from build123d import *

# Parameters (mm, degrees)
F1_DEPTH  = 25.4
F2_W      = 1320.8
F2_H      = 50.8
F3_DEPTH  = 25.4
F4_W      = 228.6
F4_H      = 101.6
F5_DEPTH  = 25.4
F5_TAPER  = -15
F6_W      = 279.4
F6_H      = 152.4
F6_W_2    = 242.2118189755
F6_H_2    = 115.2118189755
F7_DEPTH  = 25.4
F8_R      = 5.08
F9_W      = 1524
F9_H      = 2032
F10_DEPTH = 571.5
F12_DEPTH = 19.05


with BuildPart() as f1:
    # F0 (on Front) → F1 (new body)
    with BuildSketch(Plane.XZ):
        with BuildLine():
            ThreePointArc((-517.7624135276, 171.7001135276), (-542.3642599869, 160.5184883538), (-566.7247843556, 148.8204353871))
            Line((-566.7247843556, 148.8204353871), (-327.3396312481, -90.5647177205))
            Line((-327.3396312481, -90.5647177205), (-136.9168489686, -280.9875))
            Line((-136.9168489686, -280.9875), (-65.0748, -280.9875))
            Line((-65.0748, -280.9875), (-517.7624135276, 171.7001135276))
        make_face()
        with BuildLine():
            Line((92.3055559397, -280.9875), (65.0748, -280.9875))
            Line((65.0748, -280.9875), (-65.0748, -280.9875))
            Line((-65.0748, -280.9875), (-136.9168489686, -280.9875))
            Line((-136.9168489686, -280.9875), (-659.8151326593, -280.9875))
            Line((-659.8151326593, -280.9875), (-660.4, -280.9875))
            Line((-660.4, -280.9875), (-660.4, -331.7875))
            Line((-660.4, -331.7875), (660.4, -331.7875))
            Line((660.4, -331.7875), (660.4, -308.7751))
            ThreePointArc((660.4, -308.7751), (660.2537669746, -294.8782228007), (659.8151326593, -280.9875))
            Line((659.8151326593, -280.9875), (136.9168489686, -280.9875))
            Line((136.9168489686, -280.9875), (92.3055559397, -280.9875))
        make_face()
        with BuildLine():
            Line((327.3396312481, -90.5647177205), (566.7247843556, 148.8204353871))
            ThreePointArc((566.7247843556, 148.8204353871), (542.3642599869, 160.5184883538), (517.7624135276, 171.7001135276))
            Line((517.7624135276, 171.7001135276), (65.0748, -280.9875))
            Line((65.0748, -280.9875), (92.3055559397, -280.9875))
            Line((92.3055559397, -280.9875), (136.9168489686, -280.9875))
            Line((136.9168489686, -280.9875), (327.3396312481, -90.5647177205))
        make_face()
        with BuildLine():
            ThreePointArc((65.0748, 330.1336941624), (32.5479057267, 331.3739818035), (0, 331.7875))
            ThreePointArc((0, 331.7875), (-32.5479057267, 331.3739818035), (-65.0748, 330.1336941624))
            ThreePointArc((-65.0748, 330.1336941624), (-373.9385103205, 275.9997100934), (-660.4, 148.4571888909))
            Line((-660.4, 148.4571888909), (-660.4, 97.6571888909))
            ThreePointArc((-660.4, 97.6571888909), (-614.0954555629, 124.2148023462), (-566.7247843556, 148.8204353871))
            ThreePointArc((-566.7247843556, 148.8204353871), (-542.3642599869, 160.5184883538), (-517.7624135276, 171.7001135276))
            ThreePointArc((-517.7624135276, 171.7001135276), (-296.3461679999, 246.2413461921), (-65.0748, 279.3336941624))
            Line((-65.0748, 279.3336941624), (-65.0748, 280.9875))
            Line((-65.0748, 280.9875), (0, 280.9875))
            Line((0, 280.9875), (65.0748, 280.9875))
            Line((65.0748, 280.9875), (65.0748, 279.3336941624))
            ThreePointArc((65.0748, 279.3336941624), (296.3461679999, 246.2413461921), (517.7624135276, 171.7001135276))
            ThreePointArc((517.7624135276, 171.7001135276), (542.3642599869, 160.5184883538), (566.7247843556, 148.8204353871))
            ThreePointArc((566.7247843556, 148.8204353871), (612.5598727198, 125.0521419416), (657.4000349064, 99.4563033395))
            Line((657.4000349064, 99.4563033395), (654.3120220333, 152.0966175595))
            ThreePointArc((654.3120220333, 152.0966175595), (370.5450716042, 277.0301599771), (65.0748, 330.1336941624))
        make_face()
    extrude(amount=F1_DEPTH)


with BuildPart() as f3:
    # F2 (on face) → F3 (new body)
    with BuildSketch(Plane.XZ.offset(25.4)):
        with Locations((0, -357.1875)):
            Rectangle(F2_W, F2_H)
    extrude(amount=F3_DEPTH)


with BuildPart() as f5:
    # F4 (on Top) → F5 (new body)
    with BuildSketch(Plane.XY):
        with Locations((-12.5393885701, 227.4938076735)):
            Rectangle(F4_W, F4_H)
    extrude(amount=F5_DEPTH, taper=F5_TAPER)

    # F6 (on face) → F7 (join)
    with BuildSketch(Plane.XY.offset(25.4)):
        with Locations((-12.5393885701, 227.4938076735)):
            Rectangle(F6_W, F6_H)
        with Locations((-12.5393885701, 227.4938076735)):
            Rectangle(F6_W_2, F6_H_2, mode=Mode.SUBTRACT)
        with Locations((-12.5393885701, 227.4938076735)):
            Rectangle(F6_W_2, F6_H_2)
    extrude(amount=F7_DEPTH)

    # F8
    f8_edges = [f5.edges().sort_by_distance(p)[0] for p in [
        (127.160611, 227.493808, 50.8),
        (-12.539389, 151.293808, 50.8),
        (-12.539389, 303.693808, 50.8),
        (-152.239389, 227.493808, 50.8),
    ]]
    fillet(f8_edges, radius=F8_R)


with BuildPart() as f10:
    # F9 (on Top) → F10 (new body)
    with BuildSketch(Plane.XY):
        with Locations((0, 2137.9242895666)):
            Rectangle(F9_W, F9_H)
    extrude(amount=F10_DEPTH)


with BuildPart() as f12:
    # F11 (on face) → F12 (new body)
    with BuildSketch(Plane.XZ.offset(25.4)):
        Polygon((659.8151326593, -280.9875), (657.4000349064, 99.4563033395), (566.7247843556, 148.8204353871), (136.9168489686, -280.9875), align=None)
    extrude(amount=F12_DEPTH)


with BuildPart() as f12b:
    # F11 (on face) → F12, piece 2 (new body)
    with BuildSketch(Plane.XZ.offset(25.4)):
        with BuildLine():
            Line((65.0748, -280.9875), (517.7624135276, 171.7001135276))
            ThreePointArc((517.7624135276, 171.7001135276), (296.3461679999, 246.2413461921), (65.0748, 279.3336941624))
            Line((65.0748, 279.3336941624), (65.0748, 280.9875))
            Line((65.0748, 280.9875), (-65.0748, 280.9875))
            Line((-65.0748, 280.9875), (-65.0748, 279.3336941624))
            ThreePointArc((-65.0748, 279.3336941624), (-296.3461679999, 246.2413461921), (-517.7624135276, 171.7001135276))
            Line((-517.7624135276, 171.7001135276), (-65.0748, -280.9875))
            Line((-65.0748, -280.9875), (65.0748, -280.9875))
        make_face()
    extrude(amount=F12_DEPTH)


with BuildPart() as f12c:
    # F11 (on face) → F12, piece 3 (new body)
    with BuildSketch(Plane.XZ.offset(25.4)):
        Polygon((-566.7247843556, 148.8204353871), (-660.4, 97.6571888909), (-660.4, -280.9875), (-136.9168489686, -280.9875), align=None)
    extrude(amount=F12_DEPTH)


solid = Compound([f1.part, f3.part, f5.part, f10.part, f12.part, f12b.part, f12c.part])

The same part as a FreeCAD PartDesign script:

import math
import FreeCAD as App
import Part
import Sketcher
from FreeCAD import Vector
Q = App.Units.Quantity


def edges_at(feature, points):
    """Names of the edges that pass closest to the given points."""
    edges = feature.Shape.Edges
    near = lambda p: min(range(len(edges)), key=lambda i: edges[i].distToShape(Part.Vertex(*p))[0])
    return sorted({f"Edge{near(p) + 1}" for p in points})

doc = App.newDocument("Part")
body = doc.addObject("PartDesign::Body", "Body")

sketch1 = body.newObject("Sketcher::SketchObject", "Sketch")
sketch1.AttachmentSupport = (doc.getObject("XZ_Plane"), [""])
sketch1.MapMode = "FlatFace"
sketch1.addGeometry(Part.LineSegment(Vector(-566.7, 148.8, 0), Vector(-136.9, -281, 0)), False)
sketch1.addGeometry(Part.LineSegment(Vector(-136.9, -281, 0), Vector(-660.4, -281, 0)), False)
sketch1.addGeometry(Part.LineSegment(Vector(-660.4, -281, 0), Vector(-660.4, -331.8, 0)), False)
sketch1.addGeometry(Part.LineSegment(Vector(-660.4, -331.8, 0), Vector(660.4, -331.8, 0)), False)
sketch1.addGeometry(Part.LineSegment(Vector(660.4, -331.8, 0), Vector(660.4, -308.8, 0)), False)
sketch1.addGeometry(Part.ArcOfCircle(Part.Circle(Vector(0, -308.8, 0), Vector(0, 0, 1), 660.4), math.radians(0), math.radians(2.41)), False)
sketch1.addGeometry(Part.LineSegment(Vector(659.8, -281, 0), Vector(136.9, -281, 0)), False)
sketch1.addGeometry(Part.LineSegment(Vector(136.9, -281, 0), Vector(566.7, 148.8, 0)), False)
sketch1.addGeometry(Part.ArcOfCircle(Part.Circle(Vector(0, -1000.1, 0), Vector(0, 0, 1), 1281.1), math.radians(59.13), math.radians(63.75)), False)
sketch1.addGeometry(Part.LineSegment(Vector(657.4, 99.5, 0), Vector(654.3, 152.1, 0)), False)
sketch1.addGeometry(Part.ArcOfCircle(Part.Circle(Vector(0, -949.3, 0), Vector(0, 0, 1), 1281.1), math.radians(59), math.radians(87)), False)
sketch1.addGeometry(Part.ArcOfCircle(Part.Circle(Vector(0, -949.3, 0), Vector(0, 0, 1), 1281.1), math.radians(87.09), math.radians(90)), False)
sketch1.addGeometry(Part.ArcOfCircle(Part.Circle(Vector(0, -949.3, 0), Vector(0, 0, 1), 1281.1), math.radians(90), math.radians(92.91)), False)
sketch1.addGeometry(Part.ArcOfCircle(Part.Circle(Vector(0, -949.3, 0), Vector(0, 0, 1), 1281.1), math.radians(93), math.radians(121)), False)
sketch1.addGeometry(Part.LineSegment(Vector(-660.4, 148.5, 0), Vector(-660.4, 97.7, 0)), False)
sketch1.addGeometry(Part.ArcOfCircle(Part.Circle(Vector(0, -1000.1, 0), Vector(0, 0, 1), 1281.1), math.radians(116.25), math.radians(121.03)), False)
sketch1.addGeometry(Part.LineSegment(Vector(517.8, 171.7, 0), Vector(65.1, -281, 0)), False)
sketch1.addGeometry(Part.LineSegment(Vector(65.1, -281, 0), Vector(-65.1, -281, 0)), False)
sketch1.addGeometry(Part.LineSegment(Vector(-65.1, -281, 0), Vector(-517.8, 171.7, 0)), False)
sketch1.addGeometry(Part.ArcOfCircle(Part.Circle(Vector(0, -1000.1, 0), Vector(0, 0, 1), 1281.1), math.radians(93), math.radians(114)), False)
sketch1.addGeometry(Part.LineSegment(Vector(-65.1, 279.3, 0), Vector(-65.1, 281, 0)), False)
sketch1.addGeometry(Part.LineSegment(Vector(-65.1, 281, 0), Vector(65.1, 281, 0)), False)
sketch1.addGeometry(Part.LineSegment(Vector(65.1, 281, 0), Vector(65.1, 279.3, 0)), False)
sketch1.addGeometry(Part.ArcOfCircle(Part.Circle(Vector(0, -1000.1, 0), Vector(0, 0, 1), 1281.1), math.radians(66), math.radians(87)), False)
sketch1.addConstraint(Sketcher.Constraint("Coincident", 0, 2, 1, 1))
sketch1.addConstraint(Sketcher.Constraint("Coincident", 1, 2, 2, 1))
sketch1.addConstraint(Sketcher.Constraint("Coincident", 2, 2, 3, 1))
sketch1.addConstraint(Sketcher.Constraint("Coincident", 3, 2, 4, 1))
sketch1.addConstraint(Sketcher.Constraint("Tangent", 4, 2, 5, 1))
sketch1.addConstraint(Sketcher.Constraint("Coincident", 5, 2, 6, 1))
sketch1.addConstraint(Sketcher.Constraint("Coincident", 6, 2, 7, 1))
sketch1.addConstraint(Sketcher.Constraint("Coincident", 7, 2, 8, 2))
sketch1.addConstraint(Sketcher.Constraint("Coincident", 8, 1, 9, 1))
sketch1.addConstraint(Sketcher.Constraint("Coincident", 9, 2, 10, 1))
sketch1.addConstraint(Sketcher.Constraint("Coincident", 10, 2, 11, 1))
sketch1.addConstraint(Sketcher.Constraint("Coincident", 11, 2, 12, 1))
sketch1.addConstraint(Sketcher.Constraint("Coincident", 12, 2, 13, 1))
sketch1.addConstraint(Sketcher.Constraint("Coincident", 13, 2, 14, 1))
sketch1.addConstraint(Sketcher.Constraint("Coincident", 14, 2, 15, 2))
sketch1.addConstraint(Sketcher.Constraint("Coincident", 15, 1, 0, 1))
sketch1.addConstraint(Sketcher.Constraint("Coincident", 16, 2, 17, 1))
sketch1.addConstraint(Sketcher.Constraint("Coincident", 17, 2, 18, 1))
sketch1.addConstraint(Sketcher.Constraint("Coincident", 18, 2, 19, 2))
sketch1.addConstraint(Sketcher.Constraint("Coincident", 19, 1, 20, 1))
sketch1.addConstraint(Sketcher.Constraint("Coincident", 20, 2, 21, 1))
sketch1.addConstraint(Sketcher.Constraint("Coincident", 21, 2, 22, 1))
sketch1.addConstraint(Sketcher.Constraint("Coincident", 22, 2, 23, 2))
sketch1.addConstraint(Sketcher.Constraint("Coincident", 23, 1, 16, 1))
sketch1.addConstraint(Sketcher.Constraint("Horizontal", 1))
sketch1.addConstraint(Sketcher.Constraint("Vertical", 2))
sketch1.addConstraint(Sketcher.Constraint("Horizontal", 3))
sketch1.addConstraint(Sketcher.Constraint("Vertical", 4))
sketch1.addConstraint(Sketcher.Constraint("Horizontal", 6))
sketch1.addConstraint(Sketcher.Constraint("Vertical", 14))
sketch1.addConstraint(Sketcher.Constraint("Horizontal", 17))
sketch1.addConstraint(Sketcher.Constraint("Vertical", 20))
sketch1.addConstraint(Sketcher.Constraint("Horizontal", 21))
sketch1.addConstraint(Sketcher.Constraint("Vertical", 22))
sketch1.addConstraint(Sketcher.Constraint("Coincident", 11, 3, 10, 3))
sketch1.addConstraint(Sketcher.Constraint("Coincident", 12, 3, 10, 3))
sketch1.addConstraint(Sketcher.Constraint("Coincident", 13, 3, 10, 3))
sketch1.addConstraint(Sketcher.Constraint("Coincident", 15, 3, 8, 3))
sketch1.addConstraint(Sketcher.Constraint("Coincident", 19, 3, 8, 3))
sketch1.addConstraint(Sketcher.Constraint("Coincident", 23, 3, 8, 3))
sketch1.addConstraint(Sketcher.Constraint("Equal", 8, 10))
sketch1.addConstraint(Sketcher.Constraint("Equal", 13, 15))
sketch1.addConstraint(Sketcher.Constraint("Equal", 15, 19))
sketch1.addConstraint(Sketcher.Constraint("Equal", 19, 23))
sketch1.addConstraint(Sketcher.Constraint("Symmetric", 16, 2, 20, 2, -1, 1))
sketch1.addConstraint(Sketcher.Constraint("Symmetric", 0, 2, 6, 2, -2))
sketch1.addConstraint(Sketcher.Constraint("PointOnObject", 5, 3, -2))
sketch1.addConstraint(Sketcher.Constraint("PointOnObject", 8, 3, -2))
sketch1.addConstraint(Sketcher.Constraint("PointOnObject", 10, 3, -2))
sketch1.addConstraint(Sketcher.Constraint("PointOnObject", 11, 2, -2))
sketch1.addConstraint(Sketcher.Constraint("Perpendicular", 0, 7))
sketch1.addConstraint(Sketcher.Constraint("Parallel", 7, 16))
sketch1.addConstraint(Sketcher.Constraint("Perpendicular", 16, 18))
sketch1.addConstraint(Sketcher.Constraint("Horizontal", 10, 2, 12, 2))
sketch1.addConstraint(Sketcher.Constraint("Horizontal", 6, 2, 16, 2))
sketch1.addConstraint(Sketcher.Constraint("Vertical", 10, 2, 16, 2))
sketch1.addConstraint(Sketcher.Constraint("Vertical", 16, 2, 21, 2))
sketch1.addConstraint(Sketcher.Constraint("Equal", 17, 21))
sketch1.addConstraint(Sketcher.Constraint("Equal", 2, 14))
sketch1.addConstraint(Sketcher.Constraint("Equal", 0, 7))
sketch1.addConstraint(Sketcher.Constraint("Radius", 5, Q("26 in")))
sketch1.addConstraint(Sketcher.Constraint("DistanceX", 3, 1, 3, 2, Q("52 in")))
sketch1.addConstraint(Sketcher.Constraint("DistanceY", 2, 2, 2, 1, Q("2 in")))
sketch1.addConstraint(Sketcher.Constraint("DistanceX", 14, 2, -1, 1, Q("26 in")))
sketch1.addConstraint(Sketcher.Constraint("Radius", 8, Q("50.438 in")))
sketch1.addConstraint(Sketcher.Constraint("DistanceY", 20, 2, 11, 2, Q("2 in")))
sketch1.addConstraint(Sketcher.Constraint("DistanceX", 17, 2, 17, 1, Q("5.124 in")))
sketch1.addConstraint(Sketcher.Constraint("DistanceY", 4, 1, 4, 2, Q("0.906 in")))
sketch1.addConstraint(Sketcher.Constraint("DistanceY", 0, 2, -1, 1, Q("11.0625 in")))
sketch1.addConstraint(Sketcher.Constraint("DistanceX", 1, 2, 1, 1, 523.483151))
sketch1.addConstraint(Sketcher.Constraint("Distance", 9, 52.730812))
sketch1.addConstraint(Sketcher.Constraint("DistanceX", 9, 2, 5, 2, 5.503111))
pad1 = body.newObject("PartDesign::Pad", "Pad")
pad1.Profile = sketch1
pad1.Length = Q("1 in")
body2 = doc.addObject("PartDesign::Body", "Body001")

sketch2 = body2.newObject("Sketcher::SketchObject", "Sketch001")
sketch2.AttachmentSupport = (doc.getObject("XZ_Plane001"), [""])
sketch2.MapMode = "FlatFace"
sketch2.AttachmentOffset = App.Placement(Vector(0, 0, 1 * 25.4), App.Rotation())
sketch2.addGeometry(Part.LineSegment(Vector(-660, -332, 0), Vector(-660, -383, 0)), False)
sketch2.addGeometry(Part.LineSegment(Vector(-660, -383, 0), Vector(660, -383, 0)), False)
sketch2.addGeometry(Part.LineSegment(Vector(660, -383, 0), Vector(660, -332, 0)), False)
sketch2.addGeometry(Part.LineSegment(Vector(660, -332, 0), Vector(-660, -332, 0)), False)
sketch2.addConstraint(Sketcher.Constraint("Coincident", 0, 2, 1, 1))
sketch2.addConstraint(Sketcher.Constraint("Coincident", 1, 2, 2, 1))
sketch2.addConstraint(Sketcher.Constraint("Coincident", 2, 2, 3, 1))
sketch2.addConstraint(Sketcher.Constraint("Coincident", 3, 2, 0, 1))
sketch2.addConstraint(Sketcher.Constraint("Vertical", 0))
sketch2.addConstraint(Sketcher.Constraint("Horizontal", 1))
sketch2.addConstraint(Sketcher.Constraint("Vertical", 2))
sketch2.addConstraint(Sketcher.Constraint("Horizontal", 3))
sketch2.addConstraint(Sketcher.Constraint("DistanceX", 1, 1, 1, 2, Q("52 in")))
sketch2.addConstraint(Sketcher.Constraint("DistanceY", 0, 2, 0, 1, Q("2 in")))
sketch2.addConstraint(Sketcher.Constraint("DistanceX", 0, 2, -1, 1, Q("26 in")))
sketch2.addConstraint(Sketcher.Constraint("DistanceY", 0, 2, -1, 1, Q("15.0625 in")))
pad2 = body2.newObject("PartDesign::Pad", "Pad001")
pad2.Profile = sketch2
pad2.Length = Q("1 in")
body3 = doc.addObject("PartDesign::Body", "Body002")

sketch3 = body3.newObject("Sketcher::SketchObject", "Sketch002")
sketch3.AttachmentSupport = (doc.getObject("XY_Plane002"), [""])
sketch3.MapMode = "FlatFace"
sketch3.addGeometry(Part.LineSegment(Vector(-127, 278, 0), Vector(-127, 177, 0)), False)
sketch3.addGeometry(Part.LineSegment(Vector(-127, 177, 0), Vector(102, 177, 0)), False)
sketch3.addGeometry(Part.LineSegment(Vector(102, 177, 0), Vector(102, 278, 0)), False)
sketch3.addGeometry(Part.LineSegment(Vector(102, 278, 0), Vector(-127, 278, 0)), False)
sketch3.addConstraint(Sketcher.Constraint("Coincident", 0, 2, 1, 1))
sketch3.addConstraint(Sketcher.Constraint("Coincident", 1, 2, 2, 1))
sketch3.addConstraint(Sketcher.Constraint("Coincident", 2, 2, 3, 1))
sketch3.addConstraint(Sketcher.Constraint("Coincident", 3, 2, 0, 1))
sketch3.addConstraint(Sketcher.Constraint("Vertical", 0))
sketch3.addConstraint(Sketcher.Constraint("Horizontal", 1))
sketch3.addConstraint(Sketcher.Constraint("Vertical", 2))
sketch3.addConstraint(Sketcher.Constraint("Horizontal", 3))
sketch3.addConstraint(Sketcher.Constraint("DistanceX", 1, 1, 1, 2, Q("9 in")))
sketch3.addConstraint(Sketcher.Constraint("DistanceY", 0, 2, 0, 1, Q("4 in")))
sketch3.addConstraint(Sketcher.Constraint("DistanceX", 0, 2, -1, 1, 126.839389))
sketch3.addConstraint(Sketcher.Constraint("DistanceY", -1, 1, 0, 2, 176.693808))
pad3 = body3.newObject("PartDesign::Pad", "Pad002")
pad3.Profile = sketch3
pad3.Length = Q("1 in")
pad3.TaperAngle = 15

sketch4 = body3.newObject("Sketcher::SketchObject", "Sketch003")
sketch4.AttachmentSupport = (doc.getObject("XY_Plane002"), [""])
sketch4.MapMode = "FlatFace"
sketch4.AttachmentOffset = App.Placement(Vector(0, 0, 1 * 25.4), App.Rotation())
sketch4.addGeometry(Part.LineSegment(Vector(-152, 304, 0), Vector(-152, 151, 0)), False)
sketch4.addGeometry(Part.LineSegment(Vector(-152, 151, 0), Vector(127, 151, 0)), False)
sketch4.addGeometry(Part.LineSegment(Vector(127, 151, 0), Vector(127, 304, 0)), False)
sketch4.addGeometry(Part.LineSegment(Vector(127, 304, 0), Vector(-152, 304, 0)), False)
sketch4.addConstraint(Sketcher.Constraint("Coincident", 0, 2, 1, 1))
sketch4.addConstraint(Sketcher.Constraint("Coincident", 1, 2, 2, 1))
sketch4.addConstraint(Sketcher.Constraint("Coincident", 2, 2, 3, 1))
sketch4.addConstraint(Sketcher.Constraint("Coincident", 3, 2, 0, 1))
sketch4.addConstraint(Sketcher.Constraint("Vertical", 0))
sketch4.addConstraint(Sketcher.Constraint("Horizontal", 1))
sketch4.addConstraint(Sketcher.Constraint("Vertical", 2))
sketch4.addConstraint(Sketcher.Constraint("Horizontal", 3))
sketch4.addConstraint(Sketcher.Constraint("DistanceX", 1, 1, 1, 2, Q("11 in")))
sketch4.addConstraint(Sketcher.Constraint("DistanceY", 0, 2, 0, 1, Q("6 in")))
sketch4.addConstraint(Sketcher.Constraint("DistanceX", 0, 2, -1, 1, 152.239389))
sketch4.addConstraint(Sketcher.Constraint("DistanceY", -1, 1, 0, 2, 151.293808))
pad4 = body3.newObject("PartDesign::Pad", "Pad003")
pad4.Profile = sketch4
pad4.Length = Q("1 in")
doc.recompute()

fillet = body3.newObject("PartDesign::Fillet", "Fillet")
fillet.Base = (pad4, edges_at(pad4, [
    (127.161, 227.494, 50.8),
    (-12.539, 151.294, 50.8),
    (-12.539, 303.694, 50.8),
    (-152.239, 227.494, 50.8),
]))
fillet.Radius = Q("0.2 in")
body4 = doc.addObject("PartDesign::Body", "Body003")

sketch5 = body4.newObject("Sketcher::SketchObject", "Sketch004")
sketch5.AttachmentSupport = (doc.getObject("XY_Plane003"), [""])
sketch5.MapMode = "FlatFace"
sketch5.addGeometry(Part.LineSegment(Vector(-762, 3154, 0), Vector(-762, 1122, 0)), False)
sketch5.addGeometry(Part.LineSegment(Vector(-762, 1122, 0), Vector(762, 1122, 0)), False)
sketch5.addGeometry(Part.LineSegment(Vector(762, 1122, 0), Vector(762, 3154, 0)), False)
sketch5.addGeometry(Part.LineSegment(Vector(762, 3154, 0), Vector(-762, 3154, 0)), False)
sketch5.addConstraint(Sketcher.Constraint("Coincident", 0, 2, 1, 1))
sketch5.addConstraint(Sketcher.Constraint("Coincident", 1, 2, 2, 1))
sketch5.addConstraint(Sketcher.Constraint("Coincident", 2, 2, 3, 1))
sketch5.addConstraint(Sketcher.Constraint("Coincident", 3, 2, 0, 1))
sketch5.addConstraint(Sketcher.Constraint("Vertical", 0))
sketch5.addConstraint(Sketcher.Constraint("Horizontal", 1))
sketch5.addConstraint(Sketcher.Constraint("Vertical", 2))
sketch5.addConstraint(Sketcher.Constraint("Horizontal", 3))
sketch5.addConstraint(Sketcher.Constraint("DistanceX", 1, 1, 1, 2, Q("60 in")))
sketch5.addConstraint(Sketcher.Constraint("DistanceY", 0, 2, 0, 1, Q("80 in")))
sketch5.addConstraint(Sketcher.Constraint("DistanceX", 0, 2, -1, 1, Q("30 in")))
sketch5.addConstraint(Sketcher.Constraint("DistanceY", -1, 1, 0, 2, 1121.92429))
pad5 = body4.newObject("PartDesign::Pad", "Pad004")
pad5.Profile = sketch5
pad5.Length = Q("22.5 in")
body5 = doc.addObject("PartDesign::Body", "Body004")

sketch6 = body5.newObject("Sketcher::SketchObject", "Sketch005")
sketch6.AttachmentSupport = (doc.getObject("XZ_Plane004"), [""])
sketch6.MapMode = "FlatFace"
sketch6.AttachmentOffset = App.Placement(Vector(0, 0, 1 * 25.4), App.Rotation())
sketch6.addGeometry(Part.LineSegment(Vector(660, -281, 0), Vector(657, 99, 0)), False)
sketch6.addGeometry(Part.LineSegment(Vector(657, 99, 0), Vector(567, 149, 0)), False)
sketch6.addGeometry(Part.LineSegment(Vector(567, 149, 0), Vector(137, -281, 0)), False)
sketch6.addGeometry(Part.LineSegment(Vector(137, -281, 0), Vector(660, -281, 0)), False)
sketch6.addConstraint(Sketcher.Constraint("Coincident", 0, 2, 1, 1))
sketch6.addConstraint(Sketcher.Constraint("Coincident", 1, 2, 2, 1))
sketch6.addConstraint(Sketcher.Constraint("Coincident", 2, 2, 3, 1))
sketch6.addConstraint(Sketcher.Constraint("Coincident", 3, 2, 0, 1))
sketch6.addConstraint(Sketcher.Constraint("Horizontal", 3))
sketch6.addConstraint(Sketcher.Constraint("Angle", 2, Q("-135 deg")))
sketch6.addConstraint(Sketcher.Constraint("DistanceY", 2, 2, -1, 1, Q("11.0625 in")))
sketch6.addConstraint(Sketcher.Constraint("Distance", 0, 380.451469))
sketch6.addConstraint(Sketcher.Constraint("Distance", 2, 607.840211))
sketch6.addConstraint(Sketcher.Constraint("DistanceX", 3, 1, 3, 2, 522.898284))
sketch6.addConstraint(Sketcher.Constraint("DistanceX", -1, 1, 2, 2, 136.916849))
sketch6.addConstraint(Sketcher.Constraint("DistanceX", 1, 2, 0, 2, 90.675251))
pad6 = body5.newObject("PartDesign::Pad", "Pad005")
pad6.Profile = sketch6
pad6.Length = Q("0.75 in")
body6 = doc.addObject("PartDesign::Body", "Body005")

sketch7 = body6.newObject("Sketcher::SketchObject", "Sketch006")
sketch7.AttachmentSupport = (doc.getObject("XZ_Plane005"), [""])
sketch7.MapMode = "FlatFace"
sketch7.AttachmentOffset = App.Placement(Vector(0, 0, 1 * 25.4), App.Rotation())
sketch7.addGeometry(Part.LineSegment(Vector(65.1, -281, 0), Vector(517.8, 171.7, 0)), False)
sketch7.addGeometry(Part.ArcOfCircle(Part.Circle(Vector(0, -1000.1, 0), Vector(0, 0, 1), 1281.1), math.radians(66), math.radians(87)), False)
sketch7.addGeometry(Part.LineSegment(Vector(65.1, 279.3, 0), Vector(65.1, 281, 0)), False)
sketch7.addGeometry(Part.LineSegment(Vector(65.1, 281, 0), Vector(-65.1, 281, 0)), False)
sketch7.addGeometry(Part.LineSegment(Vector(-65.1, 281, 0), Vector(-65.1, 279.3, 0)), False)
sketch7.addGeometry(Part.ArcOfCircle(Part.Circle(Vector(0, -1000.1, 0), Vector(0, 0, 1), 1281.1), math.radians(93), math.radians(114)), False)
sketch7.addGeometry(Part.LineSegment(Vector(-517.8, 171.7, 0), Vector(-65.1, -281, 0)), False)
sketch7.addGeometry(Part.LineSegment(Vector(-65.1, -281, 0), Vector(65.1, -281, 0)), False)
sketch7.addConstraint(Sketcher.Constraint("Coincident", 0, 2, 1, 1))
sketch7.addConstraint(Sketcher.Constraint("Coincident", 1, 2, 2, 1))
sketch7.addConstraint(Sketcher.Constraint("Coincident", 2, 2, 3, 1))
sketch7.addConstraint(Sketcher.Constraint("Coincident", 3, 2, 4, 1))
sketch7.addConstraint(Sketcher.Constraint("Coincident", 4, 2, 5, 1))
sketch7.addConstraint(Sketcher.Constraint("Coincident", 5, 2, 6, 1))
sketch7.addConstraint(Sketcher.Constraint("Coincident", 6, 2, 7, 1))
sketch7.addConstraint(Sketcher.Constraint("Coincident", 7, 2, 0, 1))
sketch7.addConstraint(Sketcher.Constraint("Vertical", 2))
sketch7.addConstraint(Sketcher.Constraint("Horizontal", 3))
sketch7.addConstraint(Sketcher.Constraint("Vertical", 4))
sketch7.addConstraint(Sketcher.Constraint("Horizontal", 7))
sketch7.addConstraint(Sketcher.Constraint("Coincident", 5, 3, 1, 3))
sketch7.addConstraint(Sketcher.Constraint("Equal", 1, 5))
sketch7.addConstraint(Sketcher.Constraint("Symmetric", 2, 2, 6, 2, -1, 1))
sketch7.addConstraint(Sketcher.Constraint("PointOnObject", 1, 3, -2))
sketch7.addConstraint(Sketcher.Constraint("Perpendicular", 0, 6))
sketch7.addConstraint(Sketcher.Constraint("Vertical", 4, 2, 6, 2))
sketch7.addConstraint(Sketcher.Constraint("Vertical", 2, 2, 7, 2))
sketch7.addConstraint(Sketcher.Constraint("Equal", 0, 6))
sketch7.addConstraint(Sketcher.Constraint("Radius", 1, Q("50.438 in")))
sketch7.addConstraint(Sketcher.Constraint("DistanceX", 3, 2, 3, 1, Q("5.124 in")))
sketch7.addConstraint(Sketcher.Constraint("DistanceY", -1, 1, 2, 2, Q("11.0625 in")))
sketch7.addConstraint(Sketcher.Constraint("DistanceY", 1, 3, 2, 2, Q("50.438 in")))
pad7 = body6.newObject("PartDesign::Pad", "Pad006")
pad7.Profile = sketch7
pad7.Length = Q("0.75 in")
body7 = doc.addObject("PartDesign::Body", "Body006")

sketch8 = body7.newObject("Sketcher::SketchObject", "Sketch007")
sketch8.AttachmentSupport = (doc.getObject("XZ_Plane006"), [""])
sketch8.MapMode = "FlatFace"
sketch8.AttachmentOffset = App.Placement(Vector(0, 0, 1 * 25.4), App.Rotation())
sketch8.addGeometry(Part.LineSegment(Vector(-567, 149, 0), Vector(-660, 98, 0)), False)
sketch8.addGeometry(Part.LineSegment(Vector(-660, 98, 0), Vector(-660, -281, 0)), False)
sketch8.addGeometry(Part.LineSegment(Vector(-660, -281, 0), Vector(-137, -281, 0)), False)
sketch8.addGeometry(Part.LineSegment(Vector(-137, -281, 0), Vector(-567, 149, 0)), False)
sketch8.addConstraint(Sketcher.Constraint("Coincident", 0, 2, 1, 1))
sketch8.addConstraint(Sketcher.Constraint("Coincident", 1, 2, 2, 1))
sketch8.addConstraint(Sketcher.Constraint("Coincident", 2, 2, 3, 1))
sketch8.addConstraint(Sketcher.Constraint("Coincident", 3, 2, 0, 1))
sketch8.addConstraint(Sketcher.Constraint("Vertical", 1))
sketch8.addConstraint(Sketcher.Constraint("Horizontal", 2))
sketch8.addConstraint(Sketcher.Constraint("DistanceX", 0, 2, -1, 1, Q("26 in")))
sketch8.addConstraint(Sketcher.Constraint("Angle", 3, Q("135 deg")))
sketch8.addConstraint(Sketcher.Constraint("DistanceY", 1, 2, -1, 1, Q("11.0625 in")))
sketch8.addConstraint(Sketcher.Constraint("DistanceX", 2, 1, 2, 2, 523.483151))
sketch8.addConstraint(Sketcher.Constraint("DistanceY", 1, 2, 1, 1, 378.644689))
sketch8.addConstraint(Sketcher.Constraint("Distance", 3, 607.840211))
pad8 = body7.newObject("PartDesign::Pad", "Pad007")
pad8.Profile = sketch8
pad8.Length = Q("0.75 in")

doc.recompute()
